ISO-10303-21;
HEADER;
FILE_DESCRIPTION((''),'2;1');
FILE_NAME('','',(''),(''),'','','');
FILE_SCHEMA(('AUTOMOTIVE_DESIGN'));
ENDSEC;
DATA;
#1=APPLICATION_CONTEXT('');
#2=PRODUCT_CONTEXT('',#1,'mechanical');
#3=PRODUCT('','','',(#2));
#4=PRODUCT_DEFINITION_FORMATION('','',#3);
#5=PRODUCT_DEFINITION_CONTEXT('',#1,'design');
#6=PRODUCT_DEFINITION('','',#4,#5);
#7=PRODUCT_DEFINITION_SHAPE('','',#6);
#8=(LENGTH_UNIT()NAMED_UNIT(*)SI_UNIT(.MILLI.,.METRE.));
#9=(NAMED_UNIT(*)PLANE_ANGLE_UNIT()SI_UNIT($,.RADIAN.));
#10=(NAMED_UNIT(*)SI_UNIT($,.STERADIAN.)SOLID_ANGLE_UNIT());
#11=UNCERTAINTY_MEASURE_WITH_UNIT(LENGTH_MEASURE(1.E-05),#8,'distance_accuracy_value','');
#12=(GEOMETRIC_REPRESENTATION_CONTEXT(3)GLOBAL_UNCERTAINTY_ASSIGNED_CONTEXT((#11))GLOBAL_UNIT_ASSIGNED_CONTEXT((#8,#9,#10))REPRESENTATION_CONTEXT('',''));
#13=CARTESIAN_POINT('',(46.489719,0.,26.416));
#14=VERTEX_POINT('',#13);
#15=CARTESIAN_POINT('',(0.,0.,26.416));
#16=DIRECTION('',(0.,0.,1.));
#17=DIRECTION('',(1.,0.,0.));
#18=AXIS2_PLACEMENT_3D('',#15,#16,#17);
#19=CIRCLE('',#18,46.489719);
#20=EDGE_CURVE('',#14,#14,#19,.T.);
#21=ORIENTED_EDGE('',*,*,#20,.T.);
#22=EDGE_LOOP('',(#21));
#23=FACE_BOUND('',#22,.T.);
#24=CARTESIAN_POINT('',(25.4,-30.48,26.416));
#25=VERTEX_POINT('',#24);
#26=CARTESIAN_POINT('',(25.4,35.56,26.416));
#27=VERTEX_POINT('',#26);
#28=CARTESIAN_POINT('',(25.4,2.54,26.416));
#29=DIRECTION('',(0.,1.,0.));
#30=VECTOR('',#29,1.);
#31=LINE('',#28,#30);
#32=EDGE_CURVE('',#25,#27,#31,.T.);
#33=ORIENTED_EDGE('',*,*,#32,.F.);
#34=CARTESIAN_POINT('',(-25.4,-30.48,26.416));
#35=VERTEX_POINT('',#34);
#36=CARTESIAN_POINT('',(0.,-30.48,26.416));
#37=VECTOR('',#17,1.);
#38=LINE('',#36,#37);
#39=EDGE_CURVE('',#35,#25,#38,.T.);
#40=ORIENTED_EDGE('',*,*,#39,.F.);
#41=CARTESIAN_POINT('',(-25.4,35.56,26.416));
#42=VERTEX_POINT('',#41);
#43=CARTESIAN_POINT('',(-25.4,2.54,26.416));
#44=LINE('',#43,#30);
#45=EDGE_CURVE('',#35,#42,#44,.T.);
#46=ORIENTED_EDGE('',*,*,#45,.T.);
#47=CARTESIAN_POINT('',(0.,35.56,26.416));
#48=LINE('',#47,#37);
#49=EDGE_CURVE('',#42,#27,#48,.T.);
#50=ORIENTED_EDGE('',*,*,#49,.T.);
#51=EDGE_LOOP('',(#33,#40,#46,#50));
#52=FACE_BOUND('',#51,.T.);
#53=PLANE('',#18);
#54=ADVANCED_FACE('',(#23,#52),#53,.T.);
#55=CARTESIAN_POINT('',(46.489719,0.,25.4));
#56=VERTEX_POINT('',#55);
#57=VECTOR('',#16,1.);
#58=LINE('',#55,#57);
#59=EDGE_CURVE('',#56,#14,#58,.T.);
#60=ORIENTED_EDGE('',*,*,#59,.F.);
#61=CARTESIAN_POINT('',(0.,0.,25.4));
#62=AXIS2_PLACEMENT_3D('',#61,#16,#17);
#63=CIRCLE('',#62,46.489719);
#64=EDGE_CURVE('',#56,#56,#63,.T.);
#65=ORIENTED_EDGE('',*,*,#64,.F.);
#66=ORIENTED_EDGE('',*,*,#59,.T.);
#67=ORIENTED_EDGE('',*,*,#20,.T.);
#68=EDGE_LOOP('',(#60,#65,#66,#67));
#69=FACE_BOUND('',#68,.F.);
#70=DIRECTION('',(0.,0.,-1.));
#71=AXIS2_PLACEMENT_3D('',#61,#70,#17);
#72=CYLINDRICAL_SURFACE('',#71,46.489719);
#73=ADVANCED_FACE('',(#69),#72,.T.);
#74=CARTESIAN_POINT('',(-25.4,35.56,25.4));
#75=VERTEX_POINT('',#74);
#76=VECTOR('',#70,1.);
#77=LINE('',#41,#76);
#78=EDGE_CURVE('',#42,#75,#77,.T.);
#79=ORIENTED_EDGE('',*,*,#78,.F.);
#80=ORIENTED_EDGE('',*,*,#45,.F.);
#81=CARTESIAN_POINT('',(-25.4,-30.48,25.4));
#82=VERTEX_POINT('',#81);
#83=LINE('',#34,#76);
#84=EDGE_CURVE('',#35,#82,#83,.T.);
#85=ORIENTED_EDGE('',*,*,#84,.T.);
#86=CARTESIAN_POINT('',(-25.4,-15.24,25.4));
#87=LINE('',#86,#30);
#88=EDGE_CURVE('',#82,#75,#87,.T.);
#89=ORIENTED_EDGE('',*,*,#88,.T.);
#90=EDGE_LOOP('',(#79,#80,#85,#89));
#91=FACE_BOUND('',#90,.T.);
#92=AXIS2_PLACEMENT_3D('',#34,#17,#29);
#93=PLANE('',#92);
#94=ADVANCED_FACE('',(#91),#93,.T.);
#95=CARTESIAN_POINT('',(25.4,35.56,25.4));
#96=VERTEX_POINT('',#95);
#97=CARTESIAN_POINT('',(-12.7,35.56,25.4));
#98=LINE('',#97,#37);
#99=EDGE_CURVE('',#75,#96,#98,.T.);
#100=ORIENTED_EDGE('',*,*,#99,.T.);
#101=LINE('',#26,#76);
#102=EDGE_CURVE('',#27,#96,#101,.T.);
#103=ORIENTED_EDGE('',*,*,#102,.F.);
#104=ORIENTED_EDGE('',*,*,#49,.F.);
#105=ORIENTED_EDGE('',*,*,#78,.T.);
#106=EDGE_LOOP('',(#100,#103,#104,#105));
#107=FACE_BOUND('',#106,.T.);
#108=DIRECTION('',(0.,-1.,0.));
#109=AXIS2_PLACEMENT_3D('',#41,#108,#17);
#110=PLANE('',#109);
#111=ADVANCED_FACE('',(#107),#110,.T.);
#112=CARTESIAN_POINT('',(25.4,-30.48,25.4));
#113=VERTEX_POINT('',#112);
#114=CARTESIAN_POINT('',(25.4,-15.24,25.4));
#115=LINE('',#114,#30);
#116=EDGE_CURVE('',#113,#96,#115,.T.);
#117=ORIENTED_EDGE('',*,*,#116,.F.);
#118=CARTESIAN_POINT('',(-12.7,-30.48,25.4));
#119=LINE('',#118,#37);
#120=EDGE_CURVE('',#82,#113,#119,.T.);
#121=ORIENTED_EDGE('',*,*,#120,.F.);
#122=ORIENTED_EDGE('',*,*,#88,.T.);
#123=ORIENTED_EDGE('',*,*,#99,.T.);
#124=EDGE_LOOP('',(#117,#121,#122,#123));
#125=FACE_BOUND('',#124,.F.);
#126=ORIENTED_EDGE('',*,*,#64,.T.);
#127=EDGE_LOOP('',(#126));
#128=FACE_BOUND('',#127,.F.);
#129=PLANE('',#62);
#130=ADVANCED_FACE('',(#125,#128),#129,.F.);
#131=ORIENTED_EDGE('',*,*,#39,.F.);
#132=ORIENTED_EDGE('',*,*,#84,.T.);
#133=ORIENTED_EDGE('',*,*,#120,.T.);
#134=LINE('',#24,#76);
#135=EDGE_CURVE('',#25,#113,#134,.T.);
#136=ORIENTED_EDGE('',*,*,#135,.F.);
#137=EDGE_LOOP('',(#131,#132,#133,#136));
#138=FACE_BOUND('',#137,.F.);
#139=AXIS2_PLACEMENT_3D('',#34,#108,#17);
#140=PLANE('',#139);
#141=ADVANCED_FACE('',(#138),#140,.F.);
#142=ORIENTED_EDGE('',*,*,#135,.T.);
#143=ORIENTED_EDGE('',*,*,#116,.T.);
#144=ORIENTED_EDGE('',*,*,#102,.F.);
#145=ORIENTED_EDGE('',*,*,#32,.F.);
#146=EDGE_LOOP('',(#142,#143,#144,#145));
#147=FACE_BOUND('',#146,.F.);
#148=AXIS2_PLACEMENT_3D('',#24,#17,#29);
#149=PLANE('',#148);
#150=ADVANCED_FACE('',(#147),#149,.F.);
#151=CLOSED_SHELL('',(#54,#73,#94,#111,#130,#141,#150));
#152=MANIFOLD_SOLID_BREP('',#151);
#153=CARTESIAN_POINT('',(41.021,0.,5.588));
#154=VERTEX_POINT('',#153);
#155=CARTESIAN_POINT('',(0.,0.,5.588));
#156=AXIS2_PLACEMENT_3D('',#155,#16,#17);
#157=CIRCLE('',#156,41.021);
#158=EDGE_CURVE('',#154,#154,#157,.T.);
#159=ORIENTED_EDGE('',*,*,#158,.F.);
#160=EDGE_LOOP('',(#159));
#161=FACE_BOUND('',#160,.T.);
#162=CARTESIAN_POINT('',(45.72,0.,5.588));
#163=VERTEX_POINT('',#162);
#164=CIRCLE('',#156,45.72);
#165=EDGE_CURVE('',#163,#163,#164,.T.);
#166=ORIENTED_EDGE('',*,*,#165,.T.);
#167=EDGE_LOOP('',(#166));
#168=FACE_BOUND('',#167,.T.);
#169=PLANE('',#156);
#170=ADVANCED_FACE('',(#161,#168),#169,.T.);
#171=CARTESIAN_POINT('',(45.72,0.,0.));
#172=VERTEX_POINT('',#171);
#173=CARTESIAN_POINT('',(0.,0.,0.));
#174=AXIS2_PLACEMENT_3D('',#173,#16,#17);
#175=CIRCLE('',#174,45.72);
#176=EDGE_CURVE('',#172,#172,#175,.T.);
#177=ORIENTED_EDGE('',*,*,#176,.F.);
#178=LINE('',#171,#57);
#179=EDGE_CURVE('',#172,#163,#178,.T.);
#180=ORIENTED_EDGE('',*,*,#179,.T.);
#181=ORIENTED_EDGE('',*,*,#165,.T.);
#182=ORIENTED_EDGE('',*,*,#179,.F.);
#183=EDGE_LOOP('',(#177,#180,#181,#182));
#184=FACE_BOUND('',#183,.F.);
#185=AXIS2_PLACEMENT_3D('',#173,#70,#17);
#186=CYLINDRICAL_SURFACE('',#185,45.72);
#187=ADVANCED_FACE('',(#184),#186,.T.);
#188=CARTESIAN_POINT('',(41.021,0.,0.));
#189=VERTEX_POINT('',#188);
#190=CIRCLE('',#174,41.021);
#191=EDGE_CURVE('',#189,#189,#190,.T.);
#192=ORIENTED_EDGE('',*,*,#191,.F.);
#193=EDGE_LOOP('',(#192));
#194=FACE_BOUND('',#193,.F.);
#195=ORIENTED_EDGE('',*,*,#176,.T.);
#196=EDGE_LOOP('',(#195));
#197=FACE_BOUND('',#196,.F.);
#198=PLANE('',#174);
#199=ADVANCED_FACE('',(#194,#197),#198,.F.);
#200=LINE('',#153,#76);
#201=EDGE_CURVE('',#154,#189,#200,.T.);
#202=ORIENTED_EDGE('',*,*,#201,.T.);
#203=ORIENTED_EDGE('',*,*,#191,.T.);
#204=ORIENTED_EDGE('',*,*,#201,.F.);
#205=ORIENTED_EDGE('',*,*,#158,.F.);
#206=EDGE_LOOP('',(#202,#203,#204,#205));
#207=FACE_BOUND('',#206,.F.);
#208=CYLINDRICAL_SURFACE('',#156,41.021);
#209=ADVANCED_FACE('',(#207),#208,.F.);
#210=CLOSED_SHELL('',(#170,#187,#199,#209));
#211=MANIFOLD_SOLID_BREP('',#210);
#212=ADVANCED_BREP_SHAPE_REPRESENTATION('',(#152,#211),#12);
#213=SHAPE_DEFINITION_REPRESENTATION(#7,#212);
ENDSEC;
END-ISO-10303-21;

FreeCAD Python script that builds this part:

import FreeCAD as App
import Part
import Sketcher

V = App.Vector
Q = App.Units.Quantity


def add_polygon(sketch, points):
    """Adds a closed chain of lines whose ends are joined by coincident constraints."""
    first, n = sketch.GeometryCount, len(points)
    for a, b in zip(points, points[1:] + points[:1]):
        sketch.addGeometry(Part.LineSegment(App.Vector(*a, 0), App.Vector(*b, 0)), False)
    for i in range(n):
        sketch.addConstraint(Sketcher.Constraint("Coincident", first + i, 2, first + (i + 1) % n, 1))

doc = App.newDocument("Part")
params = doc.addObject("Spreadsheet::Sheet", "Params")
for row, (alias, value) in enumerate([
    ("sketch1_diameter", "3.6 in"),
    ("pad1_length", "0.22 in"),
    ("sketch2_diameter", "3.23 in"),
    ("pad2_length", "0.04 in"),
    ("sketch4_width", "2 in"),
    ("sketch4_height", "2.6 in"),
    ("pocket2_length", "0.5 in"),
], start=1):
    params.set(f"A{row}", alias)
    params.set(f"B{row}", "=" + value)
    params.setAlias(f"B{row}", alias)

body = doc.addObject("PartDesign::Body", "Body")

# Sketch on XY plane
sketch1 = doc.addObject("Sketcher::SketchObject", "Sketch")
body.addObject(sketch1)
sketch1.AttachmentSupport = (doc.XY_Plane, [""])
sketch1.MapMode = "FlatFace"
sketch1.addGeometry(Part.Circle(V(0, 0, 0), V(0, 0, 1), 45.72), False)
sketch1.addConstraint([
    Sketcher.Constraint("Coincident", 0, 3, -1, 1),
    Sketcher.Constraint("Diameter", 0, Q("3.6 in")),
])
sketch1.setExpression("Constraints[1]", "Params.sketch1_diameter")
pad1 = doc.addObject("PartDesign::Pad", "Pad")
body.addObject(pad1)
pad1.Profile = sketch1
pad1.setExpression("Length", "Params.pad1_length")

# Sketch on XY plane
sketch2 = doc.addObject("Sketcher::SketchObject", "Sketch001")
body.addObject(sketch2)
sketch2.AttachmentSupport = (doc.XY_Plane, [""])
sketch2.MapMode = "FlatFace"
sketch2.AttachmentOffset = App.Placement(V(0, 0, 0.22 * 25.4), App.Rotation())
sketch2.addGeometry(Part.Circle(V(0, 0, 0), V(0, 0, 1), 41.021), False)
sketch2.addConstraint([
    Sketcher.Constraint("Coincident", 0, 3, -1, 1),
    Sketcher.Constraint("Diameter", 0, Q("3.23 in")),
])
sketch2.setExpression("Constraints[1]", "Params.sketch2_diameter")
pocket1 = doc.addObject("PartDesign::Pocket", "Pocket")
body.addObject(pocket1)
pocket1.Profile = sketch2
pocket1.Type = "ThroughAll"
body2 = doc.addObject("PartDesign::Body", "Body001")

# Sketch on XY plane
sketch3 = doc.addObject("Sketcher::SketchObject", "Sketch002")
body2.addObject(sketch3)
sketch3.AttachmentSupport = (doc.getObject("XY_Plane001"), [""])
sketch3.MapMode = "FlatFace"
sketch3.AttachmentOffset = App.Placement(V(0, 0, 1 * 25.4), App.Rotation())
sketch3.addGeometry(Part.Circle(V(0, 0, 0), V(0, 0, 1), 46.489719), False)
sketch3.addConstraint([
    Sketcher.Constraint("Coincident", 0, 3, -1, 1),
    Sketcher.Constraint("Diameter", 0, Q("92.979438 mm")),
])
pad2 = doc.addObject("PartDesign::Pad", "Pad001")
body2.addObject(pad2)
pad2.Profile = sketch3
pad2.setExpression("Length", "Params.pad2_length")

# Sketch on XY plane
sketch4 = doc.addObject("Sketcher::SketchObject", "Sketch003")
body2.addObject(sketch4)
sketch4.AttachmentSupport = (doc.getObject("XY_Plane001"), [""])
sketch4.MapMode = "FlatFace"
sketch4.AttachmentOffset = App.Placement(V(0, 0, 1.04 * 25.4), App.Rotation())
add_polygon(sketch4, [(-25.4, 35.56), (-25.4, -30.48), (25.4, -30.48), (25.4, 35.56)])  # lines 0-3
sketch4.addConstraint([
    Sketcher.Constraint("Vertical", 0),
    Sketcher.Constraint("Horizontal", 1),
    Sketcher.Constraint("Vertical", 2),
    Sketcher.Constraint("Horizontal", 3),
    Sketcher.Constraint("DistanceX", 1, 1, 1, 2, Q("2 in")),
    Sketcher.Constraint("DistanceY", 0, 2, 0, 1, Q("2.6 in")),
    Sketcher.Constraint("DistanceX", 0, 2, -1, 1, Q("1 in")),
    Sketcher.Constraint("DistanceY", 0, 2, -1, 1, Q("1.2 in")),
])
sketch4.setExpression("Constraints[8]", "Params.sketch4_width")
sketch4.setExpression("Constraints[9]", "Params.sketch4_height")
pocket2 = doc.addObject("PartDesign::Pocket", "Pocket001")
body2.addObject(pocket2)
pocket2.Profile = sketch4
pocket2.setExpression("Length", "Params.pocket2_length")

doc.recompute()
